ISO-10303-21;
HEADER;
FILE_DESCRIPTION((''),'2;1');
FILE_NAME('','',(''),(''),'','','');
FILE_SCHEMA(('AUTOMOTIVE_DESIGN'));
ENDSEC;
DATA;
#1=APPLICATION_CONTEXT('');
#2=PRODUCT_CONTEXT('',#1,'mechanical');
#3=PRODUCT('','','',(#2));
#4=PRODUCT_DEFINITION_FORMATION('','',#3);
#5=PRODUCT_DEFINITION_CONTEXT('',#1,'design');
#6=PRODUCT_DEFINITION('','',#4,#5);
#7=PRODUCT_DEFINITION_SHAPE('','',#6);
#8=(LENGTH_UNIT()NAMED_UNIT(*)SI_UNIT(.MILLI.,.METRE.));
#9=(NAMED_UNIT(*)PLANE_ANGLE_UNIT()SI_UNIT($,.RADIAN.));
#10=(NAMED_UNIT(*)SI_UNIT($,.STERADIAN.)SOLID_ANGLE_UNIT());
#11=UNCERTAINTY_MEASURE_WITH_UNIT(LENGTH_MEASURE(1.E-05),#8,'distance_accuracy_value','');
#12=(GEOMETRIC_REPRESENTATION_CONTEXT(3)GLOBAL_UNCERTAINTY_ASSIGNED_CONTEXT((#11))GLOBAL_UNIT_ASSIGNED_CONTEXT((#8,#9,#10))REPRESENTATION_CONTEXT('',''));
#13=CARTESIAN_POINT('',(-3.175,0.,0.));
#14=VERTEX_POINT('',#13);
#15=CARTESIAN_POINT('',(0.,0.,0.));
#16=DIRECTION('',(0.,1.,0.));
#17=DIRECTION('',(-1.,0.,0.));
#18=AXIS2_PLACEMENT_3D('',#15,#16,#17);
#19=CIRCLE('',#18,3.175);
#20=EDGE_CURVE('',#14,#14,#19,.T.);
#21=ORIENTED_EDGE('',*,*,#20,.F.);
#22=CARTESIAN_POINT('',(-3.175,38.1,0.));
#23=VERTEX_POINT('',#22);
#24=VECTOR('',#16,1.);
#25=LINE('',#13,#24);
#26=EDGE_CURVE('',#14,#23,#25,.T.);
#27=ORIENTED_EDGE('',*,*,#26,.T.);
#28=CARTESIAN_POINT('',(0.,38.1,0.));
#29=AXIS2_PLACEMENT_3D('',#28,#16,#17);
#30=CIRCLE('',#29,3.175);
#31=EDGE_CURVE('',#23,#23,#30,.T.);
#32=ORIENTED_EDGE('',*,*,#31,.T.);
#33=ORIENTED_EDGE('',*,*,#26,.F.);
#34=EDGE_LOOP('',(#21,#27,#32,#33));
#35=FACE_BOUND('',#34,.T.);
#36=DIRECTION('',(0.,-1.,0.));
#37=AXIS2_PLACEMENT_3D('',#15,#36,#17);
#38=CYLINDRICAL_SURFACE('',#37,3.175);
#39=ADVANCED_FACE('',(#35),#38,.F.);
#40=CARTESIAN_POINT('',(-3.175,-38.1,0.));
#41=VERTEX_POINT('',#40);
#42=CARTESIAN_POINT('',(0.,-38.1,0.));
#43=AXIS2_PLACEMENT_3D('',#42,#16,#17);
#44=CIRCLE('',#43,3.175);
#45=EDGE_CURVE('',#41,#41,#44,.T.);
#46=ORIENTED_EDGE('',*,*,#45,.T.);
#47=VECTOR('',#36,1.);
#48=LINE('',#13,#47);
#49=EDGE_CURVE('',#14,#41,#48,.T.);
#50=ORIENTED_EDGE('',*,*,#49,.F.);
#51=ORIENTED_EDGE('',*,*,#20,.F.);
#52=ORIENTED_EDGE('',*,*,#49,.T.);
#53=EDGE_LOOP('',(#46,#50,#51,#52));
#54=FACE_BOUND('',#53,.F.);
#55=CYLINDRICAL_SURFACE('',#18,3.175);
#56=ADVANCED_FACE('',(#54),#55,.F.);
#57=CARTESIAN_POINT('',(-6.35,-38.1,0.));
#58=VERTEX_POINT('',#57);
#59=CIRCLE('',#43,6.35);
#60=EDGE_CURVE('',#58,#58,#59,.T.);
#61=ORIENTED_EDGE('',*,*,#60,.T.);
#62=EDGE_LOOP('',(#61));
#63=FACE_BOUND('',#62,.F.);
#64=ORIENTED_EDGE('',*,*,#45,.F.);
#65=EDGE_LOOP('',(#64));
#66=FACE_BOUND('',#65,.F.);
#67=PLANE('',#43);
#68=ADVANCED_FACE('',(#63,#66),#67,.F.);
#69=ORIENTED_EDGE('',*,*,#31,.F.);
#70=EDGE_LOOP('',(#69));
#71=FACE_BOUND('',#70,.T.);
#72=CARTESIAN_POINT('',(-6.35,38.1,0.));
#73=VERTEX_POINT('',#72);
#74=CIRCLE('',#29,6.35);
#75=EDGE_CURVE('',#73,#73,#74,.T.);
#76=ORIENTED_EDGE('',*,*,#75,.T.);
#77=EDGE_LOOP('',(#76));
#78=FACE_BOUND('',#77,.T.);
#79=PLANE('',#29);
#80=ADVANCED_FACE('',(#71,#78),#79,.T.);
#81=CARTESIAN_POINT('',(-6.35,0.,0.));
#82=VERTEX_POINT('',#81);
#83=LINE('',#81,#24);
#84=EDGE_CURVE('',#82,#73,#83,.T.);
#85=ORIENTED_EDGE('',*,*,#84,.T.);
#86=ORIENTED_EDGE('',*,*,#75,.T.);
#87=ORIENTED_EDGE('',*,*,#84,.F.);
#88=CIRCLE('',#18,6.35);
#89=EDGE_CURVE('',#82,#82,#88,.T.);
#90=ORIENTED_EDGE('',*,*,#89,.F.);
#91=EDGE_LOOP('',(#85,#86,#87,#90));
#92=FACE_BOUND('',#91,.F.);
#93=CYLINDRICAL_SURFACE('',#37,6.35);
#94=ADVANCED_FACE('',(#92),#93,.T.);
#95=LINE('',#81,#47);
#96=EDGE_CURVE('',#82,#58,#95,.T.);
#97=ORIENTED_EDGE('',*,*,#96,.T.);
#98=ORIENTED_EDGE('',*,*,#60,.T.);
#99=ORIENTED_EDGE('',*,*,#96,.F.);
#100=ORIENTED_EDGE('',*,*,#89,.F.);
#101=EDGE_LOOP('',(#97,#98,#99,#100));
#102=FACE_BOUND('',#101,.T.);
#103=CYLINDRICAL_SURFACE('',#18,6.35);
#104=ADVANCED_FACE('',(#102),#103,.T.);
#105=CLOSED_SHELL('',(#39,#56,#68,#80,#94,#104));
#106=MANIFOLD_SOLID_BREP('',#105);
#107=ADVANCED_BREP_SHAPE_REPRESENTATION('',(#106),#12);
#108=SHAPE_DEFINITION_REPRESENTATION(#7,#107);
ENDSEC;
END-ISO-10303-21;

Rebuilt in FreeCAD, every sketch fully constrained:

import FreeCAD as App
import Part
import Sketcher
Q = App.Units.Quantity

doc = App.newDocument("Part")
params = doc.addObject("Spreadsheet::Sheet", "Params")
for row, (alias, value) in enumerate([
    ("sketch1_diameter", "0.5 in"),
    ("sketch1_diameter2", "0.25 in"),
    ("pad1_length", "3 in"),
], start=1):
    params.set(f"A{row}", alias)
    params.set(f"B{row}", "=" + value)
    params.setAlias(f"B{row}", alias)

body = doc.addObject("PartDesign::Body", "Body")

# Sketch on XZ plane
sketch1 = body.newObject("Sketcher::SketchObject", "Sketch")
sketch1.AttachmentSupport = (doc.getObject("XZ_Plane"), [""])
sketch1.MapMode = "FlatFace"
sketch1.addGeometry(Part.Circle(App.Vector(0, 0, 0), App.Vector(0, 0, 1), 6.3), False)
sketch1.addGeometry(Part.Circle(App.Vector(0, 0, 0), App.Vector(0, 0, 1), 3.2), False)
sketch1.addConstraint(Sketcher.Constraint("Coincident", 0, 3, -1, 1))
sketch1.addConstraint(Sketcher.Constraint("Coincident", 1, 3, -1, 1))
sketch1.addConstraint(Sketcher.Constraint("Diameter", 0, Q("0.5 in")))
sketch1.addConstraint(Sketcher.Constraint("Diameter", 1, Q("0.25 in")))
sketch1.setExpression("Constraints[2]", "Params.sketch1_diameter")
sketch1.setExpression("Constraints[3]", "Params.sketch1_diameter2")
pad1 = body.newObject("PartDesign::Pad", "Pad")
pad1.Profile = sketch1
pad1.setExpression("Length", "Params.pad1_length")
pad1.Midplane = True

doc.recompute()
